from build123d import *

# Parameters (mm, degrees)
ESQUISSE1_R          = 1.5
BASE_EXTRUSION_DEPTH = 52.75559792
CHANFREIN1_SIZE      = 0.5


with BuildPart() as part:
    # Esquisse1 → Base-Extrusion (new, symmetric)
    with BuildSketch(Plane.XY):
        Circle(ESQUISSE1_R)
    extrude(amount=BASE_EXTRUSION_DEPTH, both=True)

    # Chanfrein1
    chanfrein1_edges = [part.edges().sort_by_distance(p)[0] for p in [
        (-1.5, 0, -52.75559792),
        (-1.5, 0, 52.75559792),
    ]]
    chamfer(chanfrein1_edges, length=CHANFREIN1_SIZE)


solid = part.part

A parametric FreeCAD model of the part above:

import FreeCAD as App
import Part
import Sketcher

V = App.Vector
Q = App.Units.Quantity


def edges_at(feature, points):
    """Names of the edges that pass closest to the given points."""
    edges = feature.Shape.Edges
    near = lambda p: min(range(len(edges)), key=lambda i: edges[i].distToShape(Part.Vertex(*p))[0])
    return sorted({f"Edge{near(p) + 1}" for p in points})

doc = App.newDocument("Part")
body = doc.addObject("PartDesign::Body", "Body")

# Sketch on XY plane
sketch1 = doc.addObject("Sketcher::SketchObject", "Sketch")
body.addObject(sketch1)
sketch1.AttachmentSupport = (doc.XY_Plane, [""])
sketch1.MapMode = "FlatFace"
sketch1.addGeometry(Part.Circle(V(0, 0, 0), V(0, 0, 1), 1.5), False)
sketch1.addConstraint(Sketcher.Constraint("Coincident", 0, 3, -1, 1))
sketch1.addConstraint(Sketcher.Constraint("Diameter", 0, Q("3 mm")))
pad1 = doc.addObject("PartDesign::Pad", "Pad")
body.addObject(pad1)
pad1.Profile = sketch1
pad1.Length = 105.511196
pad1.Midplane = True
doc.recompute()

chamfer = doc.addObject("PartDesign::Chamfer", "Chamfer")
body.addObject(chamfer)
chamfer.Base = (pad1, edges_at(pad1, [(-1.5, 0, -52.756), (-1.5, 0, 52.756)]))
chamfer.Size = 0.5

doc.recompute()
